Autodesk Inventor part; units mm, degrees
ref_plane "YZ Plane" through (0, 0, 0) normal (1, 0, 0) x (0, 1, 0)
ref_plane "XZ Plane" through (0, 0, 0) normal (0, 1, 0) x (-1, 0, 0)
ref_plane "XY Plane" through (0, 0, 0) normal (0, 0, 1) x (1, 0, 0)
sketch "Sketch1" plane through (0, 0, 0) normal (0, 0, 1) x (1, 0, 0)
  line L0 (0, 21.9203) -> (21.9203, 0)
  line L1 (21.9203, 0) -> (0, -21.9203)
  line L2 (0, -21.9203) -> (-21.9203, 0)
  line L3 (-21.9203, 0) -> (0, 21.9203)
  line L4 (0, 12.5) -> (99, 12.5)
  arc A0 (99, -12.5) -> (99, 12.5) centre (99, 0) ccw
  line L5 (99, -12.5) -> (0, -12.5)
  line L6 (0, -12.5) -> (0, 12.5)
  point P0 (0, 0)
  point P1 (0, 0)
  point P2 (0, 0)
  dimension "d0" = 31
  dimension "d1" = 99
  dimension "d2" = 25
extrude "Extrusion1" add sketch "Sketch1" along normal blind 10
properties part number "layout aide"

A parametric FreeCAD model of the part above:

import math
import FreeCAD as App
import Part
import Sketcher
from FreeCAD import Vector
Q = App.Units.Quantity

doc = App.newDocument("Part")
body = doc.addObject("PartDesign::Body", "Body")

# Sketch on XY plane
sketch1 = doc.addObject("Sketcher::SketchObject", "Sketch")
body.addObject(sketch1)
sketch1.AttachmentSupport = (doc.XY_Plane, [""])
sketch1.MapMode = "FlatFace"
sketch1.addGeometry([
    Part.LineSegment(Vector(9.4203, 12.5, 0), Vector(0, 21.9203, 0)),  # 0
    Part.LineSegment(Vector(0, 21.9203, 0), Vector(-21.9203, 0, 0)),  # 1
    Part.LineSegment(Vector(-21.9203, 0, 0), Vector(0, -21.9203, 0)),  # 2
    Part.LineSegment(Vector(0, -21.9203, 0), Vector(9.4203, -12.5, 0)),  # 3
    Part.LineSegment(Vector(9.4203, -12.5, 0), Vector(99, -12.5, 0)),  # 4
    Part.ArcOfCircle(Part.Circle(Vector(99, 0, 0), Vector(0, 0, 1), 12.5), math.radians(-90), math.radians(90)),  # 5
    Part.LineSegment(Vector(99, 12.5, 0), Vector(9.4203, 12.5, 0)),  # 6
], False)
sketch1.addConstraint([
    Sketcher.Constraint("Coincident", 0, 2, 1, 1),
    Sketcher.Constraint("Coincident", 1, 2, 2, 1),
    Sketcher.Constraint("Coincident", 2, 2, 3, 1),
    Sketcher.Constraint("Coincident", 3, 2, 4, 1),
    Sketcher.Constraint("Tangent", 4, 2, 5, 1),
    Sketcher.Constraint("Tangent", 5, 2, 6, 1),
    Sketcher.Constraint("Coincident", 6, 2, 0, 1),
    Sketcher.Constraint("Horizontal", 4),
    Sketcher.Constraint("Horizontal", 6),
    Sketcher.Constraint("Symmetric", 0, 2, 2, 2, -1, 1),
    Sketcher.Constraint("Symmetric", 3, 2, 6, 2, -1),
    Sketcher.Constraint("PointOnObject", 0, 2, -2),
    Sketcher.Constraint("PointOnObject", 1, 2, -1),
    Sketcher.Constraint("Perpendicular", 0, 1),
    Sketcher.Constraint("Perpendicular", 1, 2),
    Sketcher.Constraint("Radius", 5, Q("12.5 mm")),
    Sketcher.Constraint("Distance", 1, Q("31 mm")),
    Sketcher.Constraint("DistanceX", -1, 1, 5, 3, Q("99 mm")),
])
pad1 = doc.addObject("PartDesign::Pad", "Pad")
body.addObject(pad1)
pad1.Profile = sketch1
pad1.Length = 10

doc.recompute()
